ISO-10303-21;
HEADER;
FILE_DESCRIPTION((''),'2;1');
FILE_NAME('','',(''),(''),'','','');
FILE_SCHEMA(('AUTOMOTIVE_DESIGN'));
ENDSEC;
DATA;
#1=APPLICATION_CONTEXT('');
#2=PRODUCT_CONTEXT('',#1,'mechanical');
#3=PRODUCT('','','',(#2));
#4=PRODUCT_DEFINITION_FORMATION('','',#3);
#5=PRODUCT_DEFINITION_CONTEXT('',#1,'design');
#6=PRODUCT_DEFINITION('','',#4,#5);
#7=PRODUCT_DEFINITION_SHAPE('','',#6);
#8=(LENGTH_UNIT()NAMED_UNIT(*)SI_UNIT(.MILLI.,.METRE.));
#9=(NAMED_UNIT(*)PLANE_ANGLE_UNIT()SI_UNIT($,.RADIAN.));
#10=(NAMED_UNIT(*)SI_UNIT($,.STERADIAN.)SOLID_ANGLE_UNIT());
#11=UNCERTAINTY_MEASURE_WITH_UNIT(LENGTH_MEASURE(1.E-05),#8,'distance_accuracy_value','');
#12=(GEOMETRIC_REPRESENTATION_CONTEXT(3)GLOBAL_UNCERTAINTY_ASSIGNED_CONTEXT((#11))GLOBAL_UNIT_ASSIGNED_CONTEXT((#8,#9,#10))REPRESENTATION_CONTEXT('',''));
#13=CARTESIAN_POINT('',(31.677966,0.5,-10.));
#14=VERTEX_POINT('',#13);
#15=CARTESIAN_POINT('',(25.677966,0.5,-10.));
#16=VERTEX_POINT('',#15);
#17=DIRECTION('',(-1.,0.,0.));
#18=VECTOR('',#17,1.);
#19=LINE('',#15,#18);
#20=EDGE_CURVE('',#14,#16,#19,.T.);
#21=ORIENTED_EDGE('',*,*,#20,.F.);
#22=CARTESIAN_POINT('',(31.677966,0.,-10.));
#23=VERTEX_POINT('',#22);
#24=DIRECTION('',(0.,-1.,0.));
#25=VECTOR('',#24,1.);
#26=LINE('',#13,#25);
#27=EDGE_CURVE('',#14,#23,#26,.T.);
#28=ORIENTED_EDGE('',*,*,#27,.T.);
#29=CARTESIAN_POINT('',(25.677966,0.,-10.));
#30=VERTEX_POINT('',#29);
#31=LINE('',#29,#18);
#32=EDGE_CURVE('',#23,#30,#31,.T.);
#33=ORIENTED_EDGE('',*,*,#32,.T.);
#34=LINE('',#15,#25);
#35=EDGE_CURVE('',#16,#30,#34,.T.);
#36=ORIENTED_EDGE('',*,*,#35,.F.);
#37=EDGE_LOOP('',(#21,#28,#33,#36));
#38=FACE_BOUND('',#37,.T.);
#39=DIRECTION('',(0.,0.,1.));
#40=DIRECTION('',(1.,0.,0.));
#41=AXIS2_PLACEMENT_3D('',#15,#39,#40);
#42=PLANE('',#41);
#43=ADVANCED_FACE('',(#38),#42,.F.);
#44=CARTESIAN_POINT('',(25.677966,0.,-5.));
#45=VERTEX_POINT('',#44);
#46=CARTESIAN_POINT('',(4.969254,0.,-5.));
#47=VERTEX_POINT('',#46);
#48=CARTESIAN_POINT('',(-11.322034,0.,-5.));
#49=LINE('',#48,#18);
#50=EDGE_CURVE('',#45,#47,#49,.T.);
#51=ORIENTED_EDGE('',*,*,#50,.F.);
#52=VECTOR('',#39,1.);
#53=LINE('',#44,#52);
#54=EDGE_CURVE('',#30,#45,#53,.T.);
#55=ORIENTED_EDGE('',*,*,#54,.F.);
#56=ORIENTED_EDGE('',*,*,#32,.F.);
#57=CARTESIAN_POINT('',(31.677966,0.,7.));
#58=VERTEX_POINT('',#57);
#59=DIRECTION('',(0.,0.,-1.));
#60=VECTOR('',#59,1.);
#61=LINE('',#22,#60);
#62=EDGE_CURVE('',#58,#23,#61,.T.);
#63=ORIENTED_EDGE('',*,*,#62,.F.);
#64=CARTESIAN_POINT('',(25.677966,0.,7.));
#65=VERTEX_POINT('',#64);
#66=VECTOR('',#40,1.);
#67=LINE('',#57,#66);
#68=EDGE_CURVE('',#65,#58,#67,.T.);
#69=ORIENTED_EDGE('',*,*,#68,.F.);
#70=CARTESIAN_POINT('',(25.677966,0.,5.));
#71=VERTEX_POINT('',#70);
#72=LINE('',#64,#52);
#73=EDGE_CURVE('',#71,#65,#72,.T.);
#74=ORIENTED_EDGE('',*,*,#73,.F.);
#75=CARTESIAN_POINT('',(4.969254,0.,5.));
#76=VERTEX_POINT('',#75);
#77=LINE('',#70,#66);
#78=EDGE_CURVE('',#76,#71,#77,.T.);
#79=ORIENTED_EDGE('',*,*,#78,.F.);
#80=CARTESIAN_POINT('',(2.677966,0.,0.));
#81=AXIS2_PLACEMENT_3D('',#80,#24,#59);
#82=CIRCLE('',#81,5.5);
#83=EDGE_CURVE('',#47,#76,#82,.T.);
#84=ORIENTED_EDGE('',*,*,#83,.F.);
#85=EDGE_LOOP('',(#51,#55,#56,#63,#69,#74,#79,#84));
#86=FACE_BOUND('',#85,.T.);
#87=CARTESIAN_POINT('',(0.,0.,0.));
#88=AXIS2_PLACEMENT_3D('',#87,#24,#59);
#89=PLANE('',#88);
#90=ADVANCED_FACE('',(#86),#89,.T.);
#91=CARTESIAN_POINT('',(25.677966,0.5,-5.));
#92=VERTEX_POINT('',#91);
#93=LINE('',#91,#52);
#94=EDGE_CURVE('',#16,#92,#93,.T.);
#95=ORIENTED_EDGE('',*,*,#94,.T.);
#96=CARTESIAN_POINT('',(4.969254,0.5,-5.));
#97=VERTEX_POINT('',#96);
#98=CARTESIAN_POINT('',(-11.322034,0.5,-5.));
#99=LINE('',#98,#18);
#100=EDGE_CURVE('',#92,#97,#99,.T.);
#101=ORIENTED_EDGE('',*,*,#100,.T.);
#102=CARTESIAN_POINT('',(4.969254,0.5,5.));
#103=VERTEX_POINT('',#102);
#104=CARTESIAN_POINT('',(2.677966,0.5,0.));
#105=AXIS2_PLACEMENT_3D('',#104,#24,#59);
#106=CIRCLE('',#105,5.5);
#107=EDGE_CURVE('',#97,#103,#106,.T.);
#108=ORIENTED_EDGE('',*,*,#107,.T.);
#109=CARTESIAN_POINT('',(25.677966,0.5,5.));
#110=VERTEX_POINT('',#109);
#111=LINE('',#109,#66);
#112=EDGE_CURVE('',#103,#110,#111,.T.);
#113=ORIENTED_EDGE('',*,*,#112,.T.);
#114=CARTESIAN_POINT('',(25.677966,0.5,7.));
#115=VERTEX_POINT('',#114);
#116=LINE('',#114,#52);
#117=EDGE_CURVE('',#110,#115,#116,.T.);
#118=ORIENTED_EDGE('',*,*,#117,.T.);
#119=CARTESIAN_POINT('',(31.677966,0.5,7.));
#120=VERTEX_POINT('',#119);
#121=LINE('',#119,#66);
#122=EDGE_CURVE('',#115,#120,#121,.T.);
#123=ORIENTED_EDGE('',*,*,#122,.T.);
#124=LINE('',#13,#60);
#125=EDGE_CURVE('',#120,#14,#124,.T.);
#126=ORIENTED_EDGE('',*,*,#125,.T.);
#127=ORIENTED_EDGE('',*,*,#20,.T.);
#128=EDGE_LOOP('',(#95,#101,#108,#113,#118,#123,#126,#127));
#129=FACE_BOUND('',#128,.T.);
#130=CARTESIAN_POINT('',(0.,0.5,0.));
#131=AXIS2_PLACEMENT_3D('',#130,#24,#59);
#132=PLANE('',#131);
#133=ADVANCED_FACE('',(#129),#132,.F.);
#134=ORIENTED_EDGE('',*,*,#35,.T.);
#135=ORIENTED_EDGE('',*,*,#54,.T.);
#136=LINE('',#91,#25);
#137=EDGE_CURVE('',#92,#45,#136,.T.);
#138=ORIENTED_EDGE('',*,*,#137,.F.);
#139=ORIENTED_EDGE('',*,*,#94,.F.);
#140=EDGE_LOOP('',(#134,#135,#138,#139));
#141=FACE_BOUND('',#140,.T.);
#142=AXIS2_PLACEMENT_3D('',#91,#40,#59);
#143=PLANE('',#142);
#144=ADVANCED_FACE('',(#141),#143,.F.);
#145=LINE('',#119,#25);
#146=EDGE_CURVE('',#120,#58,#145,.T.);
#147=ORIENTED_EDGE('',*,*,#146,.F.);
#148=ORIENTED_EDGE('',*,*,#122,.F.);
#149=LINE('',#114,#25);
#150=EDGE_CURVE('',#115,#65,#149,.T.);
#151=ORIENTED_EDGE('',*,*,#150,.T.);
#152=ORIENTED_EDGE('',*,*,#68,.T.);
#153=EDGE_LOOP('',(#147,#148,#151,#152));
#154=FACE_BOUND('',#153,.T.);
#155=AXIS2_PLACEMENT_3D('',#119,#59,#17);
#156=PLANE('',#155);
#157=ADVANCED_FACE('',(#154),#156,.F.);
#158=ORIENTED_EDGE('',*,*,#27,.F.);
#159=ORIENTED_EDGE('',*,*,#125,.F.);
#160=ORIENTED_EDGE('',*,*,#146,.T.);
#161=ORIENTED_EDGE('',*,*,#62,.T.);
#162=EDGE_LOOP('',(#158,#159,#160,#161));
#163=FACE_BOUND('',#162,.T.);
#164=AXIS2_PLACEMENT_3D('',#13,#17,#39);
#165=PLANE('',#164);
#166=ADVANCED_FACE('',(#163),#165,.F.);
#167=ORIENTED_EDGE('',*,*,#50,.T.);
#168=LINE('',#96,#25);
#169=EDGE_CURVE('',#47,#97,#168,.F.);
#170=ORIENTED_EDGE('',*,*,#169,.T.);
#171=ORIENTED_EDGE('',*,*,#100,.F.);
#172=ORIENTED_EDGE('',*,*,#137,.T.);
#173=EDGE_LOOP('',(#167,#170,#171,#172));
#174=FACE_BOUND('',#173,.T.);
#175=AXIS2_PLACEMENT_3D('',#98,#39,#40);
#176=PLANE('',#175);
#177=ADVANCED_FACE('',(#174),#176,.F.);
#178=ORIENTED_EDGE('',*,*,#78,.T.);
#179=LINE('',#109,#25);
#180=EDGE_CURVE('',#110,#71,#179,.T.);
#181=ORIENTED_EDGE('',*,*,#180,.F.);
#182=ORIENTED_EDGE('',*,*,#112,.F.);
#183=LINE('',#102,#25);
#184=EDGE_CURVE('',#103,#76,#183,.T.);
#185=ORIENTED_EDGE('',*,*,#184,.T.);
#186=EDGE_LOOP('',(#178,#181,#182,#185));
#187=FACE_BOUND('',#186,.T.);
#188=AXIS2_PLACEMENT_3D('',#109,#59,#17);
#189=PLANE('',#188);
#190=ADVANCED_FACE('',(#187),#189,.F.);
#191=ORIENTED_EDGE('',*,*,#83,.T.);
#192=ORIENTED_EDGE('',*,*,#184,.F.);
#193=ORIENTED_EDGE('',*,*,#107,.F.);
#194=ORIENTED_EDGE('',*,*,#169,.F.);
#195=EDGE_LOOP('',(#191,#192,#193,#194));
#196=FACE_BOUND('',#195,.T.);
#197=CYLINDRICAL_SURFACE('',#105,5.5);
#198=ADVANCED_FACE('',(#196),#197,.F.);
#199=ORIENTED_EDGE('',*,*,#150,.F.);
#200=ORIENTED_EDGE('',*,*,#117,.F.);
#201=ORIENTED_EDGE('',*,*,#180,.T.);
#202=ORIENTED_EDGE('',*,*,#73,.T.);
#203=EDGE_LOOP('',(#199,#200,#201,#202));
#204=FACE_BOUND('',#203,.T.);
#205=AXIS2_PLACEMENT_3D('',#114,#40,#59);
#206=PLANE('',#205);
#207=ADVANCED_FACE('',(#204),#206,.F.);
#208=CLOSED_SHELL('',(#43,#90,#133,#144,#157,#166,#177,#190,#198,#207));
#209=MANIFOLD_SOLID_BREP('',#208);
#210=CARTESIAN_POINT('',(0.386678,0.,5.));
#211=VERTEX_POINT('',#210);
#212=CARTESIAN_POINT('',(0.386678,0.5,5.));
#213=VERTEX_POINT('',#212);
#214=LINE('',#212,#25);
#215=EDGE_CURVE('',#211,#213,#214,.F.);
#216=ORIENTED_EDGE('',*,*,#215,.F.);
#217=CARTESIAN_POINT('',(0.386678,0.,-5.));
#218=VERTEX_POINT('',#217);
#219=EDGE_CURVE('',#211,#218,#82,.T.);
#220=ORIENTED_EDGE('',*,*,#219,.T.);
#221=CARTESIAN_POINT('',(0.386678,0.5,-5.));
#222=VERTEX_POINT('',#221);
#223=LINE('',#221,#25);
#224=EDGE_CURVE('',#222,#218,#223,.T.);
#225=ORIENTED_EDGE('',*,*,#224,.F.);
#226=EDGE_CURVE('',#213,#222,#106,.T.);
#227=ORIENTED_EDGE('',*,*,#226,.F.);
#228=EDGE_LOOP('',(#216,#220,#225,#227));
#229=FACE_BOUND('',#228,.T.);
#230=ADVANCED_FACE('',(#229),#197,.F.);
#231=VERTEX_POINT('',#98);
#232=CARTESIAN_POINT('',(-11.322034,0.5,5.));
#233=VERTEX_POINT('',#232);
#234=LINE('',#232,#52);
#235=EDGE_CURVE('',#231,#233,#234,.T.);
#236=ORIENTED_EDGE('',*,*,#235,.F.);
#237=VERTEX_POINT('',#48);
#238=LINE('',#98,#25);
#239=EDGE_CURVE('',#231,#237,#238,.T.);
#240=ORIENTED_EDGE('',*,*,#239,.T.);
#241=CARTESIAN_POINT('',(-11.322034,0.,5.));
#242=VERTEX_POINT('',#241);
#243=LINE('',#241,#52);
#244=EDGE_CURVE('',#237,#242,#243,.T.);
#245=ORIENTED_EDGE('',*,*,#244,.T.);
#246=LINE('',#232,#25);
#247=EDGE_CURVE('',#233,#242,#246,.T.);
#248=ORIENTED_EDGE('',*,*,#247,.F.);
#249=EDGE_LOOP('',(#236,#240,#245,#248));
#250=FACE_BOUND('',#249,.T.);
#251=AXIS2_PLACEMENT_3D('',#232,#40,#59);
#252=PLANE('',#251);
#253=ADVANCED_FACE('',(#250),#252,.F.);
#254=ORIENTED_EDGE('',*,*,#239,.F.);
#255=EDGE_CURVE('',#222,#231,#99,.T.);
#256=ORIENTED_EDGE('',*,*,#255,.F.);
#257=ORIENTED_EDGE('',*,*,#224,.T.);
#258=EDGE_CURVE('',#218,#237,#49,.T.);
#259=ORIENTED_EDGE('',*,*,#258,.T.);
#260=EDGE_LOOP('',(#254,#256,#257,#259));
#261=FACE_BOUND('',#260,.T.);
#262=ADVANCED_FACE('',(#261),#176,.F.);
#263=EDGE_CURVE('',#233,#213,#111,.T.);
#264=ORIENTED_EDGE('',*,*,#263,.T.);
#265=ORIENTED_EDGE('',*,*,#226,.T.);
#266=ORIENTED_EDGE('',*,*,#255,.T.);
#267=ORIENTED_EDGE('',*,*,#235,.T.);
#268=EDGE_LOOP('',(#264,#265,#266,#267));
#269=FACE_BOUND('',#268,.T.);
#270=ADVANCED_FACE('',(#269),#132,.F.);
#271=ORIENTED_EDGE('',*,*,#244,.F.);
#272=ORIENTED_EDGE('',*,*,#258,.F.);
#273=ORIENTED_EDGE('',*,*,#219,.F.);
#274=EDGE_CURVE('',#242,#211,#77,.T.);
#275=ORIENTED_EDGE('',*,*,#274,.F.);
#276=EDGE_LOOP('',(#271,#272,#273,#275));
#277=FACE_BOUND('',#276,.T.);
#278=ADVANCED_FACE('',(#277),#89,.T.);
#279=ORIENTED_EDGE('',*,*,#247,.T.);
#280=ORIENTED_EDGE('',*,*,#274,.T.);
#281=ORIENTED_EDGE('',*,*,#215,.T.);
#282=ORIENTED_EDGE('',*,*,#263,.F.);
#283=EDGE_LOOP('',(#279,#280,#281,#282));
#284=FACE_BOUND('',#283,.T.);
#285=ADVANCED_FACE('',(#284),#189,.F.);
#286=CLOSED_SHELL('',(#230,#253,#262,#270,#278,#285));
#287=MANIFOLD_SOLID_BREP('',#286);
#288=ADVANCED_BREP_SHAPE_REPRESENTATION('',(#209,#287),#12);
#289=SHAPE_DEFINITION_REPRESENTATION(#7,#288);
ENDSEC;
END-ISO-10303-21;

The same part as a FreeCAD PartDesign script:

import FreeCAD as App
import Part
import Sketcher

V = App.Vector
Q = App.Units.Quantity

doc = App.newDocument("Part")
body = doc.addObject("PartDesign::Body", "Body")
body.AllowCompound = True

# Sketch on XZ plane
sketch1 = body.newObject("Sketcher::SketchObject", "Sketch")
sketch1.AttachmentSupport = (doc.getObject("XZ_Plane"), [""])
sketch1.MapMode = "FlatFace"
sketch1.addGeometry([
    Part.LineSegment(V(25.7, -5, 0), V(-11.3, -5, 0)),  # 0
    Part.LineSegment(V(-11.3, -5, 0), V(-11.3, 5, 0)),  # 1
    Part.LineSegment(V(-11.3, 5, 0), V(25.7, 5, 0)),  # 2
    Part.LineSegment(V(25.7, 5, 0), V(25.7, 7, 0)),  # 3
    Part.LineSegment(V(25.7, 7, 0), V(31.7, 7, 0)),  # 4
    Part.LineSegment(V(31.7, 7, 0), V(31.7, -10, 0)),  # 5
    Part.LineSegment(V(31.7, -10, 0), V(25.7, -10, 0)),  # 6
    Part.LineSegment(V(25.7, -10, 0), V(25.7, -5, 0)),  # 7
], False)
sketch1.addConstraint([
    Sketcher.Constraint("Coincident", 0, 2, 1, 1),
    Sketcher.Constraint("Coincident", 1, 2, 2, 1),
    Sketcher.Constraint("Coincident", 2, 2, 3, 1),
    Sketcher.Constraint("Coincident", 3, 2, 4, 1),
    Sketcher.Constraint("Coincident", 4, 2, 5, 1),
    Sketcher.Constraint("Coincident", 5, 2, 6, 1),
    Sketcher.Constraint("Coincident", 6, 2, 7, 1),
    Sketcher.Constraint("Coincident", 7, 2, 0, 1),
    Sketcher.Constraint("Horizontal", 0),
    Sketcher.Constraint("Vertical", 1),
    Sketcher.Constraint("Horizontal", 2),
    Sketcher.Constraint("Vertical", 3),
    Sketcher.Constraint("Horizontal", 4),
    Sketcher.Constraint("Vertical", 5),
    Sketcher.Constraint("Horizontal", 6),
    Sketcher.Constraint("Vertical", 7),
    Sketcher.Constraint("Symmetric", 2, 2, 7, 2, -1),
    Sketcher.Constraint("DistanceX", 0, 2, 0, 1, Q("37 mm")),
    Sketcher.Constraint("DistanceX", 4, 1, 4, 2, Q("6 mm")),
    Sketcher.Constraint("DistanceY", 1, 1, 1, 2, Q("10 mm")),
    Sketcher.Constraint("DistanceY", 3, 1, 3, 2, Q("2 mm")),
    Sketcher.Constraint("DistanceY", 5, 2, 5, 1, Q("17 mm")),
    Sketcher.Constraint("DistanceX", 0, 2, -1, 1, Q("11.322034 mm")),
])
pad1 = body.newObject("PartDesign::Pad", "Pad")
pad1.Profile = sketch1
pad1.Length = 0.5
pad1.Reversed = True

# Sketch on XZ plane
sketch2 = body.newObject("Sketcher::SketchObject", "Sketch001")
sketch2.AttachmentSupport = (doc.getObject("XZ_Plane"), [""])
sketch2.MapMode = "FlatFace"
sketch2.addGeometry(Part.Circle(V(3, 0, 0), V(0, 0, 1), 6), False)
sketch2.addConstraint([
    Sketcher.Constraint("PointOnObject", 0, 3, -1),
    Sketcher.Constraint("Diameter", 0, Q("11 mm")),
    Sketcher.Constraint("DistanceX", -1, 1, 0, 3, Q("2.677966 mm")),
])
pocket1 = body.newObject("PartDesign::Pocket", "Pocket")
pocket1.Profile = sketch2
pocket1.Type = "ThroughAll"

doc.recompute()
